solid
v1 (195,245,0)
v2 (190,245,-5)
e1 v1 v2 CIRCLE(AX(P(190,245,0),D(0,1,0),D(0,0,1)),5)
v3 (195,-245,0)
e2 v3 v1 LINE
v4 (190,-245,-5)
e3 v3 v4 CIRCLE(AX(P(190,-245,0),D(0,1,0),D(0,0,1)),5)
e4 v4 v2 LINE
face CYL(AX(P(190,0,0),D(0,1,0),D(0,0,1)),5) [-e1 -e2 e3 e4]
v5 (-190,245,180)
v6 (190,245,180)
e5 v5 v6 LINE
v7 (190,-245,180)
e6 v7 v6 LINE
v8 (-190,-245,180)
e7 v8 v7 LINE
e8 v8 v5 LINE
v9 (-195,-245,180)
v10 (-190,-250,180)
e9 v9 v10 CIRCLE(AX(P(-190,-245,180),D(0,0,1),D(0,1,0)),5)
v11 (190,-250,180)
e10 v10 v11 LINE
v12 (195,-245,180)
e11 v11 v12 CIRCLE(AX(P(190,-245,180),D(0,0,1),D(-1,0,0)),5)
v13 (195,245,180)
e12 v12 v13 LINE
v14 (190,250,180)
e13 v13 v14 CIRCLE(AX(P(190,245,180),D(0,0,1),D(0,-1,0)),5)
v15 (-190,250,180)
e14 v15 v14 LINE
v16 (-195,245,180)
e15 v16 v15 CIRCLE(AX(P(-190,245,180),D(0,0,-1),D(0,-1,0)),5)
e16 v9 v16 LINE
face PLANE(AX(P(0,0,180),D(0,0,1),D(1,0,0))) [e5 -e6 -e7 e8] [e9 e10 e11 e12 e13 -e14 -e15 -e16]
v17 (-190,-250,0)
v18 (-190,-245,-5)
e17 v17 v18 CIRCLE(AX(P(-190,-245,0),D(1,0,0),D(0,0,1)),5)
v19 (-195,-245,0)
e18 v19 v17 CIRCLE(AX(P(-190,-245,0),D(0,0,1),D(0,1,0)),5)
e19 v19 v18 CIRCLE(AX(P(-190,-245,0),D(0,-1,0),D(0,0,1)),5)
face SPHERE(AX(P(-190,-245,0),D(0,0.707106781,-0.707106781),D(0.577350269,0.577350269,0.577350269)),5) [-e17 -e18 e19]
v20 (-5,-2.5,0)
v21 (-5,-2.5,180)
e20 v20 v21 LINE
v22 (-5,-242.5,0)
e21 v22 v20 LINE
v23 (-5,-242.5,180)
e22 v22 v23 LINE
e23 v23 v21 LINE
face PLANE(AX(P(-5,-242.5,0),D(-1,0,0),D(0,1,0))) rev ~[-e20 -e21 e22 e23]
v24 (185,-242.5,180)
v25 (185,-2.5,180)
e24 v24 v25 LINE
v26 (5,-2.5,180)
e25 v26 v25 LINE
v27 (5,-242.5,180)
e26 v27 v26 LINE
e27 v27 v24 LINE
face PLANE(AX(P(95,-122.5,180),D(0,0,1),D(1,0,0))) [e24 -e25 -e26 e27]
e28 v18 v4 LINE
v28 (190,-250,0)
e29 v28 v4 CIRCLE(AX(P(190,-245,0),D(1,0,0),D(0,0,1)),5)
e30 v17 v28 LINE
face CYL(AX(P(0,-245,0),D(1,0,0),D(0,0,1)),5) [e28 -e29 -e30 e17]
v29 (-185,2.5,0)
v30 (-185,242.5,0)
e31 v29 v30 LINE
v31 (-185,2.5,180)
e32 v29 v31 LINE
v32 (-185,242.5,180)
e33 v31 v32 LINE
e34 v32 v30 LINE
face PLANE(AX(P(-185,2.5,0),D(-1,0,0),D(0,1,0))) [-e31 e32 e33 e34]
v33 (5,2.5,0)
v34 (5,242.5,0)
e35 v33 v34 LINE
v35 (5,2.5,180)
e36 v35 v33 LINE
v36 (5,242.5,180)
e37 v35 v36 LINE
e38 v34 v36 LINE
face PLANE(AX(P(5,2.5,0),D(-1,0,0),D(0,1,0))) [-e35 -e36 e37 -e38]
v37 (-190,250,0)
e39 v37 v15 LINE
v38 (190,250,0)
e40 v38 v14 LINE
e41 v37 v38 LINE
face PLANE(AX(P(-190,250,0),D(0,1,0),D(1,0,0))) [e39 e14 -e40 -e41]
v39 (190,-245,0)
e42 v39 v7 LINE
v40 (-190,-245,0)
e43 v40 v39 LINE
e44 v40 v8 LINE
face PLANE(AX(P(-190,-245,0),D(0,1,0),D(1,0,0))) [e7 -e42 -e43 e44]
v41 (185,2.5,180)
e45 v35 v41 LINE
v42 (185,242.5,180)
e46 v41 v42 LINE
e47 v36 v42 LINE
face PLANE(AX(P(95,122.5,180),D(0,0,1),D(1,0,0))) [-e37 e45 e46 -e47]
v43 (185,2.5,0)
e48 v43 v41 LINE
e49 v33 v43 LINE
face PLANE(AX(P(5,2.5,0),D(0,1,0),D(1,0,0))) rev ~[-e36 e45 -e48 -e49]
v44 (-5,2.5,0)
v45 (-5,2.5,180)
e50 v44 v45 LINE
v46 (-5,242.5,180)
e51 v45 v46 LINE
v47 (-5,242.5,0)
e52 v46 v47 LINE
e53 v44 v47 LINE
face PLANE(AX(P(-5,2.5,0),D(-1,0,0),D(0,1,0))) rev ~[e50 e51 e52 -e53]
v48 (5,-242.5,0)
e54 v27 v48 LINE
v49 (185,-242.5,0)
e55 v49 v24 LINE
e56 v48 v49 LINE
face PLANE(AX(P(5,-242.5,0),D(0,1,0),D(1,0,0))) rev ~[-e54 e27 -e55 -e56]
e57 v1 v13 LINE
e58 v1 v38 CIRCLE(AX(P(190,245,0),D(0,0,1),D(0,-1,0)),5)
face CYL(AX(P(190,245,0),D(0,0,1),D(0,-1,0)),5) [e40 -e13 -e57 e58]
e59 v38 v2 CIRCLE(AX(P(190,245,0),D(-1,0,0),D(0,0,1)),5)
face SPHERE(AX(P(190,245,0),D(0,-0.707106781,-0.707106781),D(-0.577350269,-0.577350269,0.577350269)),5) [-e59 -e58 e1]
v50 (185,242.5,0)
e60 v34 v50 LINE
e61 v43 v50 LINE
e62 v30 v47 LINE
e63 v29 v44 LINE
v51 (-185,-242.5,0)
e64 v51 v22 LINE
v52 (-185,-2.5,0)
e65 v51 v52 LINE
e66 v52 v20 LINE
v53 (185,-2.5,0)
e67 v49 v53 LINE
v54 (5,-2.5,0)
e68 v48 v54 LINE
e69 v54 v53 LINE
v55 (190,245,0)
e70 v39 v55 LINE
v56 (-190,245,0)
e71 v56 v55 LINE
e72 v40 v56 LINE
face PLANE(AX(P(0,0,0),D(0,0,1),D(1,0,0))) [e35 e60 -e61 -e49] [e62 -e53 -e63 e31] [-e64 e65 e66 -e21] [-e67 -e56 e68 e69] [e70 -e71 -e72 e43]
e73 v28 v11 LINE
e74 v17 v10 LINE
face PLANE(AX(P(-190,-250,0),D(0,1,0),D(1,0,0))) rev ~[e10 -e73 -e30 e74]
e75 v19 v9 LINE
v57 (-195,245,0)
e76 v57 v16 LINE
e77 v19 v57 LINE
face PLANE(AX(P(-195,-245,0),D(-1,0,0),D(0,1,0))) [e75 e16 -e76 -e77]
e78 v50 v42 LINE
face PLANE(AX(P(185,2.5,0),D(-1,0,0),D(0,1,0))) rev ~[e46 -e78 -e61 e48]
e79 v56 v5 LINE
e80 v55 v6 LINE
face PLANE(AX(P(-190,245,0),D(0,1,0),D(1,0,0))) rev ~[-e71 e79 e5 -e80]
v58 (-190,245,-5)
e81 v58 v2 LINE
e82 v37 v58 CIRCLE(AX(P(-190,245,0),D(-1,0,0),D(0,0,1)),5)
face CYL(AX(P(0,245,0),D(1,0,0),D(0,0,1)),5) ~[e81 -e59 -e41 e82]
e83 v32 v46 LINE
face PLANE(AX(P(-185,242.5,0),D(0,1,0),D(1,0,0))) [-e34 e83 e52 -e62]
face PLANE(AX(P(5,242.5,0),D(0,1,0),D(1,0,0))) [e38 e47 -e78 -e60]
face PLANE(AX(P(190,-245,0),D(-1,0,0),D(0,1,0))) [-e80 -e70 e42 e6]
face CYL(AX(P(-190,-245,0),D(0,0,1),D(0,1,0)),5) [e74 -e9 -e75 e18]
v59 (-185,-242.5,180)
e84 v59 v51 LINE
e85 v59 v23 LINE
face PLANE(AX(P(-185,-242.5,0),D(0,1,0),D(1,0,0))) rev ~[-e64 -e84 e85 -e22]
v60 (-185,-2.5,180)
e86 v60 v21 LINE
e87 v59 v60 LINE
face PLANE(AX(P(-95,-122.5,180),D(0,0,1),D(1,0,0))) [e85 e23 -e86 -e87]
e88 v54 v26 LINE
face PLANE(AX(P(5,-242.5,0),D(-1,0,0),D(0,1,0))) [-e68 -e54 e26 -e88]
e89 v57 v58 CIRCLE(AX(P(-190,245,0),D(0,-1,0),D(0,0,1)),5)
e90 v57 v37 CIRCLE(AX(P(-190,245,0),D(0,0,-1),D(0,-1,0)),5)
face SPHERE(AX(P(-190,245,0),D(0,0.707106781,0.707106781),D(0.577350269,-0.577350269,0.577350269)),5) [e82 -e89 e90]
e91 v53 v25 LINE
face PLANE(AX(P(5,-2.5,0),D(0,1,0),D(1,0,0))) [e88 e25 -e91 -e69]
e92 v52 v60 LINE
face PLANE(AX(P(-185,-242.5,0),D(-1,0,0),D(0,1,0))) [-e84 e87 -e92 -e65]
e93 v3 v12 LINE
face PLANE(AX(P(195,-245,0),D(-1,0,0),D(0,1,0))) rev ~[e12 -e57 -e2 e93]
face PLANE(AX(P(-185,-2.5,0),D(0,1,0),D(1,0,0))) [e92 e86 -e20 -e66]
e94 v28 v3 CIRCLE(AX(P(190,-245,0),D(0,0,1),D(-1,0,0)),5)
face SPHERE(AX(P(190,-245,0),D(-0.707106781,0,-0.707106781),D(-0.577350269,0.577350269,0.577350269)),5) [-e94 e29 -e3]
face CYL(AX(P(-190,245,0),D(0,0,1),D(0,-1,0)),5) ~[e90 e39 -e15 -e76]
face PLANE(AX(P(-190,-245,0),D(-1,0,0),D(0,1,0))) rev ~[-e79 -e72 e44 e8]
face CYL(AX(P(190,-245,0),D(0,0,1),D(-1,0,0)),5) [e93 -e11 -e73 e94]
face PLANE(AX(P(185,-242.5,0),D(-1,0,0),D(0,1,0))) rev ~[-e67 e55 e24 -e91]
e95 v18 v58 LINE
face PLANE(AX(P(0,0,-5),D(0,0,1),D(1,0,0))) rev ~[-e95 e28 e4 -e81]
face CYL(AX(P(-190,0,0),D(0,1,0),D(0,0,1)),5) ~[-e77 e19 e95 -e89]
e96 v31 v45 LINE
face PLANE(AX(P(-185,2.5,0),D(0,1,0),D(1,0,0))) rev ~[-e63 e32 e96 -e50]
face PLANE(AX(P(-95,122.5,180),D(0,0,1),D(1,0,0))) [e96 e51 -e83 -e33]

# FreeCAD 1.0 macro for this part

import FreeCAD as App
import Part
import Sketcher
from FreeCAD import Vector


def faces_at(feature, points):
    """Names of the faces that lie closest to the given points."""
    faces = feature.Shape.Faces
    near = lambda p: min(range(len(faces)), key=lambda i: faces[i].distToShape(Part.Vertex(*p))[0])
    return sorted({f"Face{near(p) + 1}" for p in points})


def add_polygon(sketch, points):
    """Adds a closed chain of lines whose ends are joined by coincident constraints."""
    first, n = sketch.GeometryCount, len(points)
    for a, b in zip(points, points[1:] + points[:1]):
        sketch.addGeometry(Part.LineSegment(App.Vector(*a, 0), App.Vector(*b, 0)), False)
    for i in range(n):
        sketch.addConstraint(Sketcher.Constraint("Coincident", first + i, 2, first + (i + 1) % n, 1))

doc = App.newDocument("Part")
body = doc.addObject("PartDesign::Body", "Body")

sketch1 = doc.addObject("Sketcher::SketchObject", "Sketch")
body.addObject(sketch1)
sketch1.AttachmentSupport = (doc.XY_Plane, [""])
sketch1.MapMode = "FlatFace"
add_polygon(sketch1, [(-190, 245), (-190, -245), (190, -245), (190, 245)])
sketch1.addConstraint(Sketcher.Constraint("Vertical", 0))
sketch1.addConstraint(Sketcher.Constraint("Horizontal", 1))
sketch1.addConstraint(Sketcher.Constraint("Vertical", 2))
sketch1.addConstraint(Sketcher.Constraint("Horizontal", 3))
sketch1.addConstraint(Sketcher.Constraint("Symmetric", 0, 2, 2, 2, -1, 1))
sketch1.addConstraint(Sketcher.Constraint("DistanceX", 1, 1, 1, 2, 380.0))
sketch1.addConstraint(Sketcher.Constraint("DistanceY", 0, 2, 0, 1, 490.0))
pad1 = doc.addObject("PartDesign::Pad", "Pad")
body.addObject(pad1)
pad1.Profile = sketch1
pad1.Length = 180
doc.recompute()

thickness = doc.addObject("PartDesign::Thickness", "Thickness")
body.addObject(thickness)
thickness.Base = (pad1, faces_at(pad1, [(0, 0, 180)]))
thickness.Value = 5
thickness.Reversed = False
thickness.Join = "Arc"

sketch2 = doc.addObject("Sketcher::SketchObject", "Sketch001")
body.addObject(sketch2)
sketch2.AttachmentSupport = (doc.XY_Plane, [""])
sketch2.MapMode = "FlatFace"
add_polygon(sketch2, [(-185, 242.5), (-185, 2.5), (-5, 2.5), (-5, 242.5)])
add_polygon(sketch2, [(5, 242.5), (5, 2.5), (185, 2.5), (185, 242.5)])
add_polygon(sketch2, [(-185, -2.5), (-185, -242.5), (-5, -242.5), (-5, -2.5)])
add_polygon(sketch2, [(5, -2.5), (5, -242.5), (185, -242.5), (185, -2.5)])
sketch2.addConstraint(Sketcher.Constraint("Vertical", 0))
sketch2.addConstraint(Sketcher.Constraint("Horizontal", 1))
sketch2.addConstraint(Sketcher.Constraint("Vertical", 2))
sketch2.addConstraint(Sketcher.Constraint("Horizontal", 3))
sketch2.addConstraint(Sketcher.Constraint("Vertical", 4))
sketch2.addConstraint(Sketcher.Constraint("Horizontal", 5))
sketch2.addConstraint(Sketcher.Constraint("Vertical", 6))
sketch2.addConstraint(Sketcher.Constraint("Horizontal", 7))
sketch2.addConstraint(Sketcher.Constraint("Vertical", 8))
sketch2.addConstraint(Sketcher.Constraint("Horizontal", 9))
sketch2.addConstraint(Sketcher.Constraint("Vertical", 10))
sketch2.addConstraint(Sketcher.Constraint("Horizontal", 11))
sketch2.addConstraint(Sketcher.Constraint("Vertical", 12))
sketch2.addConstraint(Sketcher.Constraint("Horizontal", 13))
sketch2.addConstraint(Sketcher.Constraint("Vertical", 14))
sketch2.addConstraint(Sketcher.Constraint("Horizontal", 15))
sketch2.addConstraint(Sketcher.Constraint("Symmetric", 6, 2, 8, 2, -1, 1))
sketch2.addConstraint(Sketcher.Constraint("Symmetric", 4, 2, 10, 2, -1, 1))
sketch2.addConstraint(Sketcher.Constraint("Symmetric", 2, 2, 12, 2, -1, 1))
sketch2.addConstraint(Sketcher.Constraint("Symmetric", 0, 2, 14, 2, -1, 1))
sketch2.addConstraint(Sketcher.Constraint("Symmetric", 1, 2, 4, 2, -2))
sketch2.addConstraint(Sketcher.Constraint("Symmetric", 3, 2, 6, 2, -2))
sketch2.addConstraint(Sketcher.Constraint("DistanceX", 1, 1, 1, 2, 180.0))
sketch2.addConstraint(Sketcher.Constraint("DistanceY", 0, 2, 0, 1, 240.0))
sketch2.addConstraint(Sketcher.Constraint("DistanceX", 0, 2, -1, 1, 185.0))
sketch2.addConstraint(Sketcher.Constraint("DistanceY", 8, 2, 0, 2, 245.0))
pad2 = doc.addObject("PartDesign::Pad", "Pad001")
body.addObject(pad2)
pad2.Profile = sketch2
pad2.Length = 180

sketch3 = doc.addObject("Sketcher::SketchObject", "Sketch002")
body.addObject(sketch3)
sketch3.AttachmentSupport = (doc.XY_Plane, [""])
sketch3.MapMode = "FlatFace"
add_polygon(sketch3, [(-185, 242.5), (-185, 2.5), (-5, 2.5), (-5, 242.5)])
add_polygon(sketch3, [(5, 242.5), (5, 2.5), (185, 2.5), (185, 242.5)])
add_polygon(sketch3, [(-185, -2.5), (-185, -242.5), (-5, -242.5), (-5, -2.5)])
add_polygon(sketch3, [(5, -2.5), (5, -242.5), (185, -242.5), (185, -2.5)])
sketch3.addConstraint(Sketcher.Constraint("Vertical", 0))
sketch3.addConstraint(Sketcher.Constraint("Horizontal", 1))
sketch3.addConstraint(Sketcher.Constraint("Vertical", 2))
sketch3.addConstraint(Sketcher.Constraint("Horizontal", 3))
sketch3.addConstraint(Sketcher.Constraint("Vertical", 4))
sketch3.addConstraint(Sketcher.Constraint("Horizontal", 5))
sketch3.addConstraint(Sketcher.Constraint("Vertical", 6))
sketch3.addConstraint(Sketcher.Constraint("Horizontal", 7))
sketch3.addConstraint(Sketcher.Constraint("Vertical", 8))
sketch3.addConstraint(Sketcher.Constraint("Horizontal", 9))
sketch3.addConstraint(Sketcher.Constraint("Vertical", 10))
sketch3.addConstraint(Sketcher.Constraint("Horizontal", 11))
sketch3.addConstraint(Sketcher.Constraint("Vertical", 12))
sketch3.addConstraint(Sketcher.Constraint("Horizontal", 13))
sketch3.addConstraint(Sketcher.Constraint("Vertical", 14))
sketch3.addConstraint(Sketcher.Constraint("Horizontal", 15))
sketch3.addConstraint(Sketcher.Constraint("Symmetric", 6, 2, 8, 2, -1, 1))
sketch3.addConstraint(Sketcher.Constraint("Symmetric", 4, 2, 10, 2, -1, 1))
sketch3.addConstraint(Sketcher.Constraint("Symmetric", 2, 2, 12, 2, -1, 1))
sketch3.addConstraint(Sketcher.Constraint("Symmetric", 0, 2, 14, 2, -1, 1))
sketch3.addConstraint(Sketcher.Constraint("Symmetric", 1, 2, 4, 2, -2))
sketch3.addConstraint(Sketcher.Constraint("Symmetric", 3, 2, 6, 2, -2))
sketch3.addConstraint(Sketcher.Constraint("DistanceX", 1, 1, 1, 2, 180.0))
sketch3.addConstraint(Sketcher.Constraint("DistanceY", 0, 2, 0, 1, 240.0))
sketch3.addConstraint(Sketcher.Constraint("DistanceX", 0, 2, -1, 1, 185.0))
sketch3.addConstraint(Sketcher.Constraint("DistanceY", 8, 2, 0, 2, 245.0))
pad3 = doc.addObject("PartDesign::Pad", "Pad002")
body.addObject(pad3)
pad3.Profile = sketch3
pad3.Length = 10

doc.recompute()
